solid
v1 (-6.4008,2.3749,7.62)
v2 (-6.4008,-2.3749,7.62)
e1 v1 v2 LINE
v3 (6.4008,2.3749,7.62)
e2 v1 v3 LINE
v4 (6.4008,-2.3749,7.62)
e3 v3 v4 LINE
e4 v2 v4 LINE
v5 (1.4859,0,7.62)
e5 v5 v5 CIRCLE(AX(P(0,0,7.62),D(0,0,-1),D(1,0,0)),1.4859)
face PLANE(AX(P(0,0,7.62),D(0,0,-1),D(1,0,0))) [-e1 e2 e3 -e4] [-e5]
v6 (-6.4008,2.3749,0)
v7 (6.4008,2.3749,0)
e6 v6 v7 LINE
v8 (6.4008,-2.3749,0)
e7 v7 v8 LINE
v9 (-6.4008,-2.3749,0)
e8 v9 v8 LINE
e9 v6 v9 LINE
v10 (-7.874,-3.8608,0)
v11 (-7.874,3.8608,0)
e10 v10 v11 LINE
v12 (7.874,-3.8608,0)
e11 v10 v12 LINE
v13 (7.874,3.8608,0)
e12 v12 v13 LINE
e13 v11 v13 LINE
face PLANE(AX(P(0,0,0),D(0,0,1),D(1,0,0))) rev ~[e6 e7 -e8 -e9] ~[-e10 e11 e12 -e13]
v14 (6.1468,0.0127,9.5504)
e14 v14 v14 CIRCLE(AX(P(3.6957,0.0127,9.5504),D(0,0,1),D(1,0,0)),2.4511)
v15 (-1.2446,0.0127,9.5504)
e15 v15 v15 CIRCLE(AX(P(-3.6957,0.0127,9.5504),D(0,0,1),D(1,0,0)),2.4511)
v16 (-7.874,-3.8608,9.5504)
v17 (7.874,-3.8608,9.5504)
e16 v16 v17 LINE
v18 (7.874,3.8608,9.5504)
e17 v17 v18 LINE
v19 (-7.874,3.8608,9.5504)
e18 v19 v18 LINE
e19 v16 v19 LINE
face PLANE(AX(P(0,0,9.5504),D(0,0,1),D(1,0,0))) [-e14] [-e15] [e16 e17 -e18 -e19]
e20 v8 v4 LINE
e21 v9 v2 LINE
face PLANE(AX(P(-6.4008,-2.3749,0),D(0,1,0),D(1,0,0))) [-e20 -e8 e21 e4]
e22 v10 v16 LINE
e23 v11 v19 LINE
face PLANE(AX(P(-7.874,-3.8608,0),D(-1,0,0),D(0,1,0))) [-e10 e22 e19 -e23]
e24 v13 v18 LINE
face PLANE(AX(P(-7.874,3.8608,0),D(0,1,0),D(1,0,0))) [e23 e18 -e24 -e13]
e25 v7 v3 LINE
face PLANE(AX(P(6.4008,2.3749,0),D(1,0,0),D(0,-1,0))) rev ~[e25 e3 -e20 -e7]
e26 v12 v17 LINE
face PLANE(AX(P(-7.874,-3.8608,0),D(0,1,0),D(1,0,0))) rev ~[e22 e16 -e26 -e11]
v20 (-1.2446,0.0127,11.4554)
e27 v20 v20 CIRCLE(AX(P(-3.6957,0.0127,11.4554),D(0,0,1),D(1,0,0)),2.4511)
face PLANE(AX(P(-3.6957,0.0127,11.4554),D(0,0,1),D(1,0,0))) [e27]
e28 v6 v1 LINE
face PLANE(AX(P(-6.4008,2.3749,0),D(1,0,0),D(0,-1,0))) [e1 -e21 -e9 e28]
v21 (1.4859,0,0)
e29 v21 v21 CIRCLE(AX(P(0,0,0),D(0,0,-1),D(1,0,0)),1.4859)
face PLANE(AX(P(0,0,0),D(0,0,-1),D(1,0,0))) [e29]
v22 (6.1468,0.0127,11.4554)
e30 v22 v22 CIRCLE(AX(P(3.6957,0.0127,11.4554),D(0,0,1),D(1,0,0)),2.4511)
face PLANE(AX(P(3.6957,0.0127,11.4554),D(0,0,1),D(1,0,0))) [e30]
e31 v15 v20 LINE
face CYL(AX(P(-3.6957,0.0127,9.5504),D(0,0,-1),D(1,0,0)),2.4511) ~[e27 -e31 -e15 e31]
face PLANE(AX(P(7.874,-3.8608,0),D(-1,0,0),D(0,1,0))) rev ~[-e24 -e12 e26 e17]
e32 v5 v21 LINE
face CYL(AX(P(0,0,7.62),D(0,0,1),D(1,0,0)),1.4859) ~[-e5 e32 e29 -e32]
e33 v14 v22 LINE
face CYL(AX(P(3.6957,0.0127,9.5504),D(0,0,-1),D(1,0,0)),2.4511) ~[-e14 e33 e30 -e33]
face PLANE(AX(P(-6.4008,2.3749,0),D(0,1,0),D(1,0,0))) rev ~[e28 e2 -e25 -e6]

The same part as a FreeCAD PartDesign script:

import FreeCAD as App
import Part
import Sketcher
Q = App.Units.Quantity


def add_polygon(sketch, points):
    """Adds a closed chain of lines whose ends are joined by coincident constraints."""
    first, n = sketch.GeometryCount, len(points)
    for a, b in zip(points, points[1:] + points[:1]):
        sketch.addGeometry(Part.LineSegment(App.Vector(*a, 0), App.Vector(*b, 0)), False)
    for i in range(n):
        sketch.addConstraint(Sketcher.Constraint("Coincident", first + i, 2, first + (i + 1) % n, 1))

doc = App.newDocument("Part")
params = doc.addObject("Spreadsheet::Sheet", "Params")
for row, (alias, value) in enumerate([
    ("sketch1_width", "0.62 in"),
    ("sketch1_height", "0.304 in"),
    ("pad1_length", "0.376 in"),
    ("sketch2_diameter", "0.193 in"),
    ("pad2_length", "0.075 in"),
    ("sketch3_diameter", "0.193 in"),
    ("pad3_length", "0.075 in"),
    ("sketch4_width", "0.504 in"),
    ("sketch4_height", "0.187 in"),
    ("pocket1_length", "0.3 in"),
    ("sketch5_diameter", "0.117 in"),
    ("pad4_length", "0.3 in"),
], start=1):
    params.set(f"A{row}", alias)
    params.set(f"B{row}", "=" + value)
    params.setAlias(f"B{row}", alias)

body = doc.addObject("PartDesign::Body", "Body")

# Sketch on XY plane
sketch1 = body.newObject("Sketcher::SketchObject", "Sketch")
sketch1.AttachmentSupport = (doc.getObject("XY_Plane"), [""])
sketch1.MapMode = "FlatFace"
add_polygon(sketch1, [(-8, 4), (-8, -4), (8, -4), (8, 4)])  # lines 0-3
sketch1.addConstraint(Sketcher.Constraint("Vertical", 0))
sketch1.addConstraint(Sketcher.Constraint("Horizontal", 1))
sketch1.addConstraint(Sketcher.Constraint("Vertical", 2))
sketch1.addConstraint(Sketcher.Constraint("Horizontal", 3))
sketch1.addConstraint(Sketcher.Constraint("Symmetric", 0, 2, 2, 2, -1, 1))
sketch1.addConstraint(Sketcher.Constraint("DistanceX", 1, 1, 1, 2, Q("0.62 in")))
sketch1.addConstraint(Sketcher.Constraint("DistanceY", 0, 2, 0, 1, Q("0.304 in")))
sketch1.setExpression("Constraints[9]", "Params.sketch1_width")
sketch1.setExpression("Constraints[10]", "Params.sketch1_height")
pad1 = body.newObject("PartDesign::Pad", "Pad")
pad1.Profile = sketch1
pad1.setExpression("Length", "Params.pad1_length")

# Sketch on XY plane
sketch2 = body.newObject("Sketcher::SketchObject", "Sketch001")
sketch2.AttachmentSupport = (doc.getObject("XY_Plane"), [""])
sketch2.MapMode = "FlatFace"
sketch2.AttachmentOffset = App.Placement(App.Vector(0, 0, 0.376 * 25.4), App.Rotation())
sketch2.addGeometry(Part.Circle(App.Vector(-3.7, 0, 0), App.Vector(0, 0, 1), 2.5), False)
sketch2.addConstraint(Sketcher.Constraint("Diameter", 0, Q("0.193 in")))
sketch2.addConstraint(Sketcher.Constraint("DistanceX", 0, 3, -1, 1, Q("0.1455 in")))
sketch2.addConstraint(Sketcher.Constraint("DistanceY", -1, 1, 0, 3, Q("0.0005 in")))
sketch2.setExpression("Constraints[0]", "Params.sketch2_diameter")
pad2 = body.newObject("PartDesign::Pad", "Pad001")
pad2.Profile = sketch2
pad2.setExpression("Length", "Params.pad2_length")

# Sketch on XY plane
sketch3 = body.newObject("Sketcher::SketchObject", "Sketch002")
sketch3.AttachmentSupport = (doc.getObject("XY_Plane"), [""])
sketch3.MapMode = "FlatFace"
sketch3.AttachmentOffset = App.Placement(App.Vector(0, 0, 0.376 * 25.4), App.Rotation())
sketch3.addGeometry(Part.Circle(App.Vector(3.7, 0, 0), App.Vector(0, 0, 1), 2.5), False)
sketch3.addConstraint(Sketcher.Constraint("Diameter", 0, Q("0.193 in")))
sketch3.addConstraint(Sketcher.Constraint("DistanceX", -1, 1, 0, 3, Q("0.1455 in")))
sketch3.addConstraint(Sketcher.Constraint("DistanceY", -1, 1, 0, 3, Q("0.0005 in")))
sketch3.setExpression("Constraints[0]", "Params.sketch3_diameter")
pad3 = body.newObject("PartDesign::Pad", "Pad002")
pad3.Profile = sketch3
pad3.setExpression("Length", "Params.pad3_length")

# Sketch on XY plane
sketch4 = body.newObject("Sketcher::SketchObject", "Sketch003")
sketch4.AttachmentSupport = (doc.getObject("XY_Plane"), [""])
sketch4.MapMode = "FlatFace"
add_polygon(sketch4, [(-6.4, -2.4), (-6.4, 2.4), (6.4, 2.4), (6.4, -2.4)])  # lines 0-3
sketch4.addConstraint(Sketcher.Constraint("Vertical", 0))
sketch4.addConstraint(Sketcher.Constraint("Horizontal", 1))
sketch4.addConstraint(Sketcher.Constraint("Vertical", 2))
sketch4.addConstraint(Sketcher.Constraint("Horizontal", 3))
sketch4.addConstraint(Sketcher.Constraint("Symmetric", 0, 2, 2, 2, -1, 1))
sketch4.addConstraint(Sketcher.Constraint("DistanceX", 1, 1, 1, 2, Q("0.504 in")))
sketch4.addConstraint(Sketcher.Constraint("DistanceY", 0, 1, 0, 2, Q("0.187 in")))
sketch4.setExpression("Constraints[9]", "Params.sketch4_width")
sketch4.setExpression("Constraints[10]", "Params.sketch4_height")
pocket1 = body.newObject("PartDesign::Pocket", "Pocket")
pocket1.Profile = sketch4
pocket1.setExpression("Length", "Params.pocket1_length")
pocket1.Reversed = True

# Sketch on XY plane
sketch5 = body.newObject("Sketcher::SketchObject", "Sketch004")
sketch5.AttachmentSupport = (doc.getObject("XY_Plane"), [""])
sketch5.MapMode = "FlatFace"
sketch5.AttachmentOffset = App.Placement(App.Vector(0, 0, 0.3 * 25.4), App.Rotation())
sketch5.addGeometry(Part.Circle(App.Vector(0, 0, 0), App.Vector(0, 0, 1), 1.5), False)
sketch5.addConstraint(Sketcher.Constraint("Coincident", 0, 3, -1, 1))
sketch5.addConstraint(Sketcher.Constraint("Diameter", 0, Q("0.117 in")))
sketch5.setExpression("Constraints[1]", "Params.sketch5_diameter")
pad4 = body.newObject("PartDesign::Pad", "Pad003")
pad4.Profile = sketch5
pad4.setExpression("Length", "Params.pad4_length")
pad4.Reversed = True

doc.recompute()
